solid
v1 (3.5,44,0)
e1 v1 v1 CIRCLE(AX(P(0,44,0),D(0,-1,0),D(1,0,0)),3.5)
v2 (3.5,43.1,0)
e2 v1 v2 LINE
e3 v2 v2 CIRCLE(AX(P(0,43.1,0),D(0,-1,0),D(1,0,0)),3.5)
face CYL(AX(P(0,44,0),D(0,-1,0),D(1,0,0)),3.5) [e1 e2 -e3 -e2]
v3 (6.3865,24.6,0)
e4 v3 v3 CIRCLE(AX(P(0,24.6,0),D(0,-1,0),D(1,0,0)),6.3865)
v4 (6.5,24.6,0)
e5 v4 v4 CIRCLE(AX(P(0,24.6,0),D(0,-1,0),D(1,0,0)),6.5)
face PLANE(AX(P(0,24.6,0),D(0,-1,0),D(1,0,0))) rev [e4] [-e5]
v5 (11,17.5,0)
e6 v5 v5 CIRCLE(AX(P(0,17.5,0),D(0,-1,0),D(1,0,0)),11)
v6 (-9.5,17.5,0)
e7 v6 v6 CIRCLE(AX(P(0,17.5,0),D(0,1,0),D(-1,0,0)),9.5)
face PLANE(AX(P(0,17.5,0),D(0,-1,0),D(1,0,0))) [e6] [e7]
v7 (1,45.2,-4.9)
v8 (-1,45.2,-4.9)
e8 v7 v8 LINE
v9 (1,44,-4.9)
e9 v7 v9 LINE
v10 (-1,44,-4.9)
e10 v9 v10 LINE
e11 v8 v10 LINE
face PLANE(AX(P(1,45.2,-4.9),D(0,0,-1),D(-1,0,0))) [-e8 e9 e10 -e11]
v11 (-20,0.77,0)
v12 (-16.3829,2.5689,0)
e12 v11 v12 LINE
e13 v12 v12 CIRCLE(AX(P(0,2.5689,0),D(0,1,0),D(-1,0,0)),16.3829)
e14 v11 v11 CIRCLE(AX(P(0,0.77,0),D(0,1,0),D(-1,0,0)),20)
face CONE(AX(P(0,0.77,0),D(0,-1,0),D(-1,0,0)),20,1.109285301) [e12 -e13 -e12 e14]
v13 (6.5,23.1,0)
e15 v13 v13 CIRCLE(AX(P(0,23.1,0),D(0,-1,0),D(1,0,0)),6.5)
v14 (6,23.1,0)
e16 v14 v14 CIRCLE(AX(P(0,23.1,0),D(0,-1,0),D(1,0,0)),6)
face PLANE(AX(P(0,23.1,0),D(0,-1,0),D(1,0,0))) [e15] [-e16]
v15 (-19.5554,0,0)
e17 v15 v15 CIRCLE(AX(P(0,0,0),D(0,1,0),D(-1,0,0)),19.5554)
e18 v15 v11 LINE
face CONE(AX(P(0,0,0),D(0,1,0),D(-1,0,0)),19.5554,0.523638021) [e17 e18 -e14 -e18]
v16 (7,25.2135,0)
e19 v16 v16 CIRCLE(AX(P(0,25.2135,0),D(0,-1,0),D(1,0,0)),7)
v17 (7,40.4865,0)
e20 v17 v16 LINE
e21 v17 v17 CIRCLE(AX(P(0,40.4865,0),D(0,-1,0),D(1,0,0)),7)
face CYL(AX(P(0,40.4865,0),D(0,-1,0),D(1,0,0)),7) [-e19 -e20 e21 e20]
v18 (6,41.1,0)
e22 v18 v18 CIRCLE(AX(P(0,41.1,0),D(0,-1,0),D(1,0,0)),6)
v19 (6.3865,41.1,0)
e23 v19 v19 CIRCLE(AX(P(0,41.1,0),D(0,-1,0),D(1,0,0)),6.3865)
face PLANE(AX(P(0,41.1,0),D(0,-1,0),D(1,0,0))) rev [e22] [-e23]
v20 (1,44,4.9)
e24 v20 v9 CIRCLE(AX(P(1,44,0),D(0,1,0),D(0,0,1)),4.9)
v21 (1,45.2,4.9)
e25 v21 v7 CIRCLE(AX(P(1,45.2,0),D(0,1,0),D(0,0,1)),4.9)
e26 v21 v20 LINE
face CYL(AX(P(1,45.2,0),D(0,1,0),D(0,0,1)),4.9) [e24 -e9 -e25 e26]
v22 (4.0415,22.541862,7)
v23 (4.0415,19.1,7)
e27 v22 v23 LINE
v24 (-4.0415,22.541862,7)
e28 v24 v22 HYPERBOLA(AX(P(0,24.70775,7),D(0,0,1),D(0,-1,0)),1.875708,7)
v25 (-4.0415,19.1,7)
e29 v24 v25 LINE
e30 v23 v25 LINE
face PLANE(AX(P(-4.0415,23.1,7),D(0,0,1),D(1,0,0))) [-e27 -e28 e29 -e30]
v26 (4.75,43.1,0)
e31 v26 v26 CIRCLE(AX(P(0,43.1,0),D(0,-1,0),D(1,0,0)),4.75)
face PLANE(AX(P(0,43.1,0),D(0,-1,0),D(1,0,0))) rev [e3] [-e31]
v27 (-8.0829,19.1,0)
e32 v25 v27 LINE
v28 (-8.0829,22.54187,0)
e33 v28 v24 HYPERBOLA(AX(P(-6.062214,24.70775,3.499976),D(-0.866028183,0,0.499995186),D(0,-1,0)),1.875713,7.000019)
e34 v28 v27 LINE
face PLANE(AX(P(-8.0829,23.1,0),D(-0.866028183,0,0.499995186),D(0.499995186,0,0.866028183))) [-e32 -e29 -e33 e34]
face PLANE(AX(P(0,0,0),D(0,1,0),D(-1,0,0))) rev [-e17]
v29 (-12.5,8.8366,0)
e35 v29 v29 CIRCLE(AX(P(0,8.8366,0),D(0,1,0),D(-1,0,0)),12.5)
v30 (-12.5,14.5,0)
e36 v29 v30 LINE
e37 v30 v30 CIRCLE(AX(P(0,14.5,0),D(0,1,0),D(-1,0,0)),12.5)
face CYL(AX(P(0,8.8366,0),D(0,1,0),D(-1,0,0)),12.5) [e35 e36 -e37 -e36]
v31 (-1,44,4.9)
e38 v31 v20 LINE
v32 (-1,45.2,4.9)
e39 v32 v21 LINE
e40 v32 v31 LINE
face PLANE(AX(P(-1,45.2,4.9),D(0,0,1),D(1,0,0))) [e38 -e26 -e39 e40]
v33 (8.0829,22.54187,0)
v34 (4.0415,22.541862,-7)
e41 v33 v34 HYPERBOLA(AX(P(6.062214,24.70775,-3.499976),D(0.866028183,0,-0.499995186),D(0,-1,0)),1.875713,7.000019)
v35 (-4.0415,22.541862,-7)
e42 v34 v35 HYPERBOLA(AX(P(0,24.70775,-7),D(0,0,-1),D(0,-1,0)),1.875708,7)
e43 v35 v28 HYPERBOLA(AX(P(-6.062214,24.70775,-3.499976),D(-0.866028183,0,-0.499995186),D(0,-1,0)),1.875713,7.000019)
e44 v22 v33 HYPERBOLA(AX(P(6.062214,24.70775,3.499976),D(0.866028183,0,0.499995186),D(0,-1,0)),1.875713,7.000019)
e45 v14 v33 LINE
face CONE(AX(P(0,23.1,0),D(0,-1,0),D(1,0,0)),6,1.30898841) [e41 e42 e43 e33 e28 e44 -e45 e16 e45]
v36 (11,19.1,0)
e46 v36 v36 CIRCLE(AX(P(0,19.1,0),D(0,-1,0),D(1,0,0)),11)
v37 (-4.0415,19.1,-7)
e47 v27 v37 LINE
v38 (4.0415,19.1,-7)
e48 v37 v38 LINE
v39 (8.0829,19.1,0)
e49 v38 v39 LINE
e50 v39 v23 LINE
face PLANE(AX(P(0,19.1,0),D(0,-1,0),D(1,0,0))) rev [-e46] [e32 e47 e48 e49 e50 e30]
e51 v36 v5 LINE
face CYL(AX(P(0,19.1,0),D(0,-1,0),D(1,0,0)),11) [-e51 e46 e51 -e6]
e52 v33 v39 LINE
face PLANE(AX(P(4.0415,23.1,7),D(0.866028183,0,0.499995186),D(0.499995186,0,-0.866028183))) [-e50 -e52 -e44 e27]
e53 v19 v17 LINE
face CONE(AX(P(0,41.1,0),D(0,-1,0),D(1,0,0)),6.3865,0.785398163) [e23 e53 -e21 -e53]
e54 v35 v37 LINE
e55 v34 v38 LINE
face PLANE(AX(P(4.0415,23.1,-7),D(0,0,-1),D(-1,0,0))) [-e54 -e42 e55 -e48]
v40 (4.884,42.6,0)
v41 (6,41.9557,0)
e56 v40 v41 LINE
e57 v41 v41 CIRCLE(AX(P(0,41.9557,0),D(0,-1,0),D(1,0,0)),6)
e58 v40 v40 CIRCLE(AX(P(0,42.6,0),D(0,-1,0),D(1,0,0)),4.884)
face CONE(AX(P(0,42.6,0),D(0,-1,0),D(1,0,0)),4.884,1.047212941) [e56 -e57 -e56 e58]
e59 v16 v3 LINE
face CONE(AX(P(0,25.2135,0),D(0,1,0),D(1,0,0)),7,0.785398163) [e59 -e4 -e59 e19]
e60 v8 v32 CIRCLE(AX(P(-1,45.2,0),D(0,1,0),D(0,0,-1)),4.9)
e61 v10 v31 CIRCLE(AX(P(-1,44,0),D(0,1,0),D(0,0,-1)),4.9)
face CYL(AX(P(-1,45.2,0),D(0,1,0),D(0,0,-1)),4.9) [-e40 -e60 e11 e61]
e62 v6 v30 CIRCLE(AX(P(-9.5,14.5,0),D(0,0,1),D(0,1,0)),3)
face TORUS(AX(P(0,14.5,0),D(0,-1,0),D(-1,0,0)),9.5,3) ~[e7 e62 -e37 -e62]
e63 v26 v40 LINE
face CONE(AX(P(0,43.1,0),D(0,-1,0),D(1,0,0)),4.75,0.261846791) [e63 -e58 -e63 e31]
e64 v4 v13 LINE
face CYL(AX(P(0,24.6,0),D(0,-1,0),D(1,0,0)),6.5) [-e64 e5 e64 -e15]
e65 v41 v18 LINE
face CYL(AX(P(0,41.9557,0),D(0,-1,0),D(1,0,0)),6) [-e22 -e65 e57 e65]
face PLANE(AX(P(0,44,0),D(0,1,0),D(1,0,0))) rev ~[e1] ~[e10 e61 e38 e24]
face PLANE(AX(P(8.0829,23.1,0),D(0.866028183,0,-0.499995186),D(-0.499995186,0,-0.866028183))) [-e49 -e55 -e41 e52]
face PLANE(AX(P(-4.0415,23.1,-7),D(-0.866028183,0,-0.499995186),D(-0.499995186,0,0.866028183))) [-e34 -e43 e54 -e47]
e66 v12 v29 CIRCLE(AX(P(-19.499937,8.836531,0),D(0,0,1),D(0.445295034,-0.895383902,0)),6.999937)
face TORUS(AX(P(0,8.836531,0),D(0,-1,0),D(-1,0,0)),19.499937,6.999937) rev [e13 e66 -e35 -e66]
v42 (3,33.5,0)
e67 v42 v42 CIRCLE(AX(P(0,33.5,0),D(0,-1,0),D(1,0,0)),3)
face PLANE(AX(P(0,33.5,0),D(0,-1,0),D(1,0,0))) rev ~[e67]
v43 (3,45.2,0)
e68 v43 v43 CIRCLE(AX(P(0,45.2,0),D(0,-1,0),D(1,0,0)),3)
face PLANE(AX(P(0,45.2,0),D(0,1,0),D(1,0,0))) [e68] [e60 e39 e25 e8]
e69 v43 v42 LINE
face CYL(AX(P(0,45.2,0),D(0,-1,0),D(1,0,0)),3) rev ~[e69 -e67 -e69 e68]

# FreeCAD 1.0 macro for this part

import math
import FreeCAD as App
import Part
import Sketcher

V = App.Vector
Q = App.Units.Quantity


def add_polygon(sketch, points):
    """Adds a closed chain of lines whose ends are joined by coincident constraints."""
    first, n = sketch.GeometryCount, len(points)
    for a, b in zip(points, points[1:] + points[:1]):
        sketch.addGeometry(Part.LineSegment(App.Vector(*a, 0), App.Vector(*b, 0)), False)
    for i in range(n):
        sketch.addConstraint(Sketcher.Constraint("Coincident", first + i, 2, first + (i + 1) % n, 1))

doc = App.newDocument("Part")
body = doc.addObject("PartDesign::Body", "Body")

# Sketch on XZ plane
sketch1 = doc.addObject("Sketcher::SketchObject", "Sketch")
body.addObject(sketch1)
sketch1.AttachmentSupport = (doc.XZ_Plane, [""])
sketch1.MapMode = "FlatFace"
sketch1.AttachmentOffset = App.Placement(V(0, 0, -45.2), App.Rotation())
sketch1.addGeometry([
    Part.LineSegment(V(1, -4.9, 0), V(-1, -4.9, 0)),
    Part.ArcOfCircle(Part.Circle(V(-1, 0, 0), V(0, 0, 1), 4.9), math.radians(90), math.radians(270)),
    Part.LineSegment(V(-1, 4.9, 0), V(1, 4.9, 0)),
    Part.ArcOfCircle(Part.Circle(V(1, 0, 0), V(0, 0, 1), 4.9), math.radians(-90), math.radians(90)),
], False)
sketch1.addConstraint([
    Sketcher.Constraint("Tangent", 0, 2, 1, 2),
    Sketcher.Constraint("Tangent", 1, 1, 2, 1),
    Sketcher.Constraint("Tangent", 2, 2, 3, 2),
    Sketcher.Constraint("Tangent", 3, 1, 0, 1),
    Sketcher.Constraint("Horizontal", 0),
    Sketcher.Constraint("Horizontal", 2),
    Sketcher.Constraint("Symmetric", 1, 3, 3, 3, -1, 1),
    Sketcher.Constraint("Radius", 1, 4.9),
    Sketcher.Constraint("DistanceX", 0, 2, 0, 1, 2.0),
])
pad1 = doc.addObject("PartDesign::Pad", "Pad")
body.addObject(pad1)
pad1.Profile = sketch1
pad1.Length = 1.2

# Sketch on XY plane
sketch2 = doc.addObject("Sketcher::SketchObject", "Sketch001")
body.addObject(sketch2)
sketch2.AttachmentSupport = (doc.XY_Plane, [""])
sketch2.MapMode = "FlatFace"
add_polygon(sketch2, [(0, 44), (0, 41.1), (6, 41.1), (6, 42), (4.9, 42.6), (4.8, 43.1), (3.5, 43.1), (3.5, 44)])  # lines 0-7
sketch2.addConstraint([
    Sketcher.Constraint("Vertical", 0),
    Sketcher.Constraint("Horizontal", 1),
    Sketcher.Constraint("Vertical", 2),
    Sketcher.Constraint("Horizontal", 5),
    Sketcher.Constraint("Vertical", 6),
    Sketcher.Constraint("Horizontal", 7),
    Sketcher.Constraint("PointOnObject", 0, 2, -2),
    Sketcher.Constraint("DistanceX", 1, 1, 1, 2, 6.0),
    Sketcher.Constraint("Angle", 3, Q("150.001 deg")),
    Sketcher.Constraint("DistanceX", 7, 2, 7, 1, 3.5),
    Sketcher.Constraint("DistanceY", 0, 2, 0, 1, 2.9),
    Sketcher.Constraint("DistanceY", 6, 1, 6, 2, 0.9),
    Sketcher.Constraint("DistanceY", -1, 1, 6, 2, 44.0),
    Sketcher.Constraint("DistanceX", 5, 2, 5, 1, 1.25),
    Sketcher.Constraint("DistanceY", -1, 1, 3, 2, 42.6),
    Sketcher.Constraint("DistanceY", 2, 1, 2, 2, 0.8557),
])
revolution = doc.addObject("PartDesign::Revolution", "Revolution")
body.addObject(revolution)
revolution.Profile = sketch2
revolution.ReferenceAxis = (sketch2, ["V_Axis"])
revolution.Angle = 360

# Sketch on XY plane
sketch3 = doc.addObject("Sketcher::SketchObject", "Sketch002")
body.addObject(sketch3)
sketch3.AttachmentSupport = (doc.XY_Plane, [""])
sketch3.MapMode = "FlatFace"
add_polygon(sketch3, [(0, 41.1), (0, 24.6), (6.4, 24.6), (7, 25.2), (7, 40.5), (6.4, 41.1)])  # lines 0-5
sketch3.addConstraint([
    Sketcher.Constraint("Vertical", 0),
    Sketcher.Constraint("Horizontal", 1),
    Sketcher.Constraint("Vertical", 3),
    Sketcher.Constraint("Horizontal", 5),
    Sketcher.Constraint("PointOnObject", 0, 2, -2),
    Sketcher.Constraint("Perpendicular", 2, 4),
    Sketcher.Constraint("Vertical", 1, 2, 4, 2),
    Sketcher.Constraint("Equal", 2, 4),
    Sketcher.Constraint("DistanceY", 0, 2, 0, 1, 16.5),
    Sketcher.Constraint("DistanceX", -1, 1, 2, 2, 7.0),
    Sketcher.Constraint("DistanceY", -1, 1, 0, 2, 24.6),
    Sketcher.Constraint("DistanceY", 3, 1, 3, 2, 15.273),
])
revolution2 = doc.addObject("PartDesign::Revolution", "Revolution001")
body.addObject(revolution2)
revolution2.Profile = sketch3
revolution2.ReferenceAxis = (sketch3, ["V_Axis"])
revolution2.Angle = 360

# Sketch on XY plane
sketch4 = doc.addObject("Sketcher::SketchObject", "Sketch003")
body.addObject(sketch4)
sketch4.AttachmentSupport = (doc.XY_Plane, [""])
sketch4.MapMode = "FlatFace"
add_polygon(sketch4, [(0, 24.6), (0, 23.1), (6.5, 23.1), (6.5, 24.6)])  # lines 0-3
sketch4.addConstraint([
    Sketcher.Constraint("Vertical", 0),
    Sketcher.Constraint("Horizontal", 1),
    Sketcher.Constraint("Vertical", 2),
    Sketcher.Constraint("Horizontal", 3),
    Sketcher.Constraint("PointOnObject", 0, 2, -2),
    Sketcher.Constraint("DistanceX", 1, 1, 1, 2, 6.5),
    Sketcher.Constraint("DistanceY", 0, 2, 0, 1, 1.5),
    Sketcher.Constraint("DistanceY", -1, 1, 0, 2, 23.1),
])
revolution3 = doc.addObject("PartDesign::Revolution", "Revolution002")
body.addObject(revolution3)
revolution3.Profile = sketch4
revolution3.ReferenceAxis = (sketch4, ["V_Axis"])
revolution3.Angle = 360

# Sketch on XY plane
sketch5 = doc.addObject("Sketcher::SketchObject", "Sketch004")
body.addObject(sketch5)
sketch5.AttachmentSupport = (doc.XY_Plane, [""])
sketch5.MapMode = "FlatFace"
add_polygon(sketch5, [(0, 23.1), (0, 17.5), (6, 17.5), (8.4, 18.1), (8.4, 22.5), (6, 23.1)])  # lines 0-5
sketch5.addConstraint([
    Sketcher.Constraint("Vertical", 0),
    Sketcher.Constraint("Horizontal", 1),
    Sketcher.Constraint("Vertical", 3),
    Sketcher.Constraint("Horizontal", 5),
    Sketcher.Constraint("PointOnObject", 0, 2, -2),
    Sketcher.Constraint("Vertical", 1, 2, 4, 2),
    Sketcher.Constraint("Equal", 2, 4),
    Sketcher.Constraint("DistanceX", 1, 1, 1, 2, 6.0),
    Sketcher.Constraint("Angle", 2, Q("15.0005 deg")),
    Sketcher.Constraint("DistanceY", 0, 2, 0, 1, 5.6),
    Sketcher.Constraint("DistanceY", -1, 1, 0, 2, 17.5),
    Sketcher.Constraint("DistanceX", -1, 1, 2, 2, 8.4),
])
revolution4 = doc.addObject("PartDesign::Revolution", "Revolution003")
body.addObject(revolution4)
revolution4.Profile = sketch5
revolution4.ReferenceAxis = (sketch5, ["V_Axis"])
revolution4.Angle = 360

# Sketch on XZ plane
sketch6 = doc.addObject("Sketcher::SketchObject", "Sketch005")
body.addObject(sketch6)
sketch6.AttachmentSupport = (doc.XZ_Plane, [""])
sketch6.MapMode = "FlatFace"
sketch6.AttachmentOffset = App.Placement(V(0, 0, -23.1), App.Rotation())
add_polygon(sketch6, [(-12, -12), (-12, 12), (12, 12), (12, -12)])  # lines 0-3
add_polygon(sketch6, [(-4, 7), (-8, 0), (-4, -7), (4, -7), (8, 0), (4, 7)])  # lines 4-9
sketch6.addConstraint([
    Sketcher.Constraint("Vertical", 0),
    Sketcher.Constraint("Horizontal", 1),
    Sketcher.Constraint("Vertical", 2),
    Sketcher.Constraint("Horizontal", 3),
    Sketcher.Constraint("Horizontal", 6),
    Sketcher.Constraint("Horizontal", 9),
    Sketcher.Constraint("Symmetric", 0, 2, 2, 2, -1, 1),
    Sketcher.Constraint("Symmetric", 4, 2, 7, 2, -1, 1),
    Sketcher.Constraint("Symmetric", 5, 2, 8, 2, -1, 1),
    Sketcher.Constraint("PointOnObject", 4, 2, -1),
    Sketcher.Constraint("Parallel", 4, 7),
    Sketcher.Constraint("Vertical", 6, 2, 8, 2),
    Sketcher.Constraint("Equal", 3, 0),
    Sketcher.Constraint("DistanceX", 1, 1, 1, 2, 24.0),
    Sketcher.Constraint("Angle", 4, Q("-119.9997 deg")),
    Sketcher.Constraint("DistanceY", 5, 2, -1, 1, 7.0),
    Sketcher.Constraint("DistanceX", 6, 1, 6, 2, 8.083),
])
pocket1 = doc.addObject("PartDesign::Pocket", "Pocket")
body.addObject(pocket1)
pocket1.Profile = sketch6
pocket1.Length = 5.6
pocket1.Reversed = True

# Sketch on XY plane
sketch7 = doc.addObject("Sketcher::SketchObject", "Sketch006")
body.addObject(sketch7)
sketch7.AttachmentSupport = (doc.XY_Plane, [""])
sketch7.MapMode = "FlatFace"
add_polygon(sketch7, [(0, 19.1), (0, 17.5), (11, 17.5), (11, 19.1)])  # lines 0-3
sketch7.addConstraint([
    Sketcher.Constraint("Vertical", 0),
    Sketcher.Constraint("Horizontal", 1),
    Sketcher.Constraint("Vertical", 2),
    Sketcher.Constraint("Horizontal", 3),
    Sketcher.Constraint("PointOnObject", 0, 2, -2),
    Sketcher.Constraint("DistanceX", 1, 1, 1, 2, 11.0),
    Sketcher.Constraint("DistanceY", 0, 2, 0, 1, 1.6),
    Sketcher.Constraint("DistanceY", -1, 1, 0, 2, 17.5),
])
revolution5 = doc.addObject("PartDesign::Revolution", "Revolution004")
body.addObject(revolution5)
revolution5.Profile = sketch7
revolution5.ReferenceAxis = (sketch7, ["V_Axis"])
revolution5.Angle = 360

# Sketch on XY plane
sketch8 = doc.addObject("Sketcher::SketchObject", "Sketch007")
body.addObject(sketch8)
sketch8.AttachmentSupport = (doc.XY_Plane, [""])
sketch8.MapMode = "FlatFace"
add_polygon(sketch8, [(0, 45.2), (0, 33.5), (3, 33.5), (3, 45.2)])  # lines 0-3
sketch8.addConstraint([
    Sketcher.Constraint("Vertical", 0),
    Sketcher.Constraint("Horizontal", 1),
    Sketcher.Constraint("Vertical", 2),
    Sketcher.Constraint("Horizontal", 3),
    Sketcher.Constraint("PointOnObject", 0, 2, -2),
    Sketcher.Constraint("DistanceX", 1, 1, 1, 2, 3.0),
    Sketcher.Constraint("DistanceY", 0, 2, 0, 1, 11.7),
    Sketcher.Constraint("DistanceY", -1, 1, 0, 2, 33.5),
])
groove = doc.addObject("PartDesign::Groove", "Groove")
body.addObject(groove)
groove.Profile = sketch8
groove.ReferenceAxis = (sketch8, ["V_Axis"])
groove.Angle = 360

# Sketch on XY plane
sketch9 = doc.addObject("Sketcher::SketchObject", "Sketch008")
body.addObject(sketch9)
sketch9.AttachmentSupport = (doc.XY_Plane, [""])
sketch9.MapMode = "FlatFace"
sketch9.addGeometry([
    Part.LineSegment(V(0, 0, 0), V(0, 17.5, 0)),  # 0
    Part.LineSegment(V(0, 17.5, 0), V(-9.5, 17.5, 0)),  # 1
    Part.ArcOfCircle(Part.Circle(V(-9.5, 14.5, 0), V(0, 0, 1), 3), math.radians(90), math.radians(180)),  # 2
    Part.LineSegment(V(-12.5, 14.5, 0), V(-12.5, 8.8, 0)),  # 3
    Part.ArcOfCircle(Part.Circle(V(-19.5, 8.8, 0), V(0, 0, 1), 7), math.radians(-64), math.radians(0)),  # 4
    Part.LineSegment(V(-16.4, 2.6, 0), V(-20, 0.8, 0)),  # 5
    Part.LineSegment(V(-20, 0.8, 0), V(-19.6, 0, 0)),  # 6
    Part.LineSegment(V(-19.6, 0, 0), V(0, 0, 0)),  # 7
], False)
sketch9.addConstraint([
    Sketcher.Constraint("Coincident", 0, 2, 1, 1),
    Sketcher.Constraint("Tangent", 1, 2, 2, 1),
    Sketcher.Constraint("Tangent", 2, 2, 3, 1),
    Sketcher.Constraint("Tangent", 3, 2, 4, 2),
    Sketcher.Constraint("Tangent", 4, 1, 5, 1),
    Sketcher.Constraint("Coincident", 5, 2, 6, 1),
    Sketcher.Constraint("Coincident", 6, 2, 7, 1),
    Sketcher.Constraint("Coincident", 7, 2, 0, 1),
    Sketcher.Constraint("Vertical", 0),
    Sketcher.Constraint("Horizontal", 1),
    Sketcher.Constraint("Vertical", 3),
    Sketcher.Constraint("Horizontal", 7),
    Sketcher.Constraint("Coincident", 7, 2, -1, 1),
    Sketcher.Constraint("Radius", 2, 3.0),
    Sketcher.Constraint("Radius", 4, 7.0),
    Sketcher.Constraint("DistanceX", 1, 2, 1, 1, 9.5),
    Sketcher.Constraint("DistanceY", 0, 1, 0, 2, 17.5),
    Sketcher.Constraint("DistanceX", 5, 2, -1, 1, 20.0),
    Sketcher.Constraint("DistanceY", -1, 1, 5, 2, 0.77),
    Sketcher.Constraint("DistanceX", 7, 1, 7, 2, 19.5554),
    Sketcher.Constraint("DistanceY", 3, 2, 3, 1, 5.6634),
])
revolution6 = doc.addObject("PartDesign::Revolution", "Revolution005")
body.addObject(revolution6)
revolution6.Profile = sketch9
revolution6.ReferenceAxis = (sketch9, ["V_Axis"])
revolution6.Angle = 360

doc.recompute()
